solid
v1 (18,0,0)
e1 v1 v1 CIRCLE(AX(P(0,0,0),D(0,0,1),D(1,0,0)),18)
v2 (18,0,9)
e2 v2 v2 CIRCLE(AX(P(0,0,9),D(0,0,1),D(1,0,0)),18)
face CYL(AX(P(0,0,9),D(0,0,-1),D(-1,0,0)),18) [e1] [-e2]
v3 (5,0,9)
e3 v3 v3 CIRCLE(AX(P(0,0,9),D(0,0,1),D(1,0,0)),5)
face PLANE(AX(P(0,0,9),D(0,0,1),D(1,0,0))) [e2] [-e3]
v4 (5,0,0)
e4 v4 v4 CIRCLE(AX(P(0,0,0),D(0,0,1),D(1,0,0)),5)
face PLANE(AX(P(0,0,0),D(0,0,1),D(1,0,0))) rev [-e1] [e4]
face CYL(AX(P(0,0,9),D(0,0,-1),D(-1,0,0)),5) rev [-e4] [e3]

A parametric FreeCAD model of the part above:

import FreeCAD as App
import Part
import Sketcher
Q = App.Units.Quantity

doc = App.newDocument("Part")
body = doc.addObject("PartDesign::Body", "Body")

# Sketch on XY plane
sketch1 = body.newObject("Sketcher::SketchObject", "Sketch")
sketch1.AttachmentSupport = (doc.getObject("XY_Plane"), [""])
sketch1.MapMode = "FlatFace"
sketch1.addGeometry([
    Part.Circle(App.Vector(0, 0, 0), App.Vector(0, 0, 1), 18),
    Part.Circle(App.Vector(0, 0, 0), App.Vector(0, 0, 1), 5),
], False)
sketch1.addConstraint([
    Sketcher.Constraint("Coincident", 0, 3, -1, 1),
    Sketcher.Constraint("Coincident", 1, 3, -1, 1),
    Sketcher.Constraint("Diameter", 0, Q("36 mm")),
    Sketcher.Constraint("Diameter", 1, Q("10 mm")),
])
pad1 = body.newObject("PartDesign::Pad", "Pad")
pad1.Profile = sketch1
pad1.Length = 9

doc.recompute()
